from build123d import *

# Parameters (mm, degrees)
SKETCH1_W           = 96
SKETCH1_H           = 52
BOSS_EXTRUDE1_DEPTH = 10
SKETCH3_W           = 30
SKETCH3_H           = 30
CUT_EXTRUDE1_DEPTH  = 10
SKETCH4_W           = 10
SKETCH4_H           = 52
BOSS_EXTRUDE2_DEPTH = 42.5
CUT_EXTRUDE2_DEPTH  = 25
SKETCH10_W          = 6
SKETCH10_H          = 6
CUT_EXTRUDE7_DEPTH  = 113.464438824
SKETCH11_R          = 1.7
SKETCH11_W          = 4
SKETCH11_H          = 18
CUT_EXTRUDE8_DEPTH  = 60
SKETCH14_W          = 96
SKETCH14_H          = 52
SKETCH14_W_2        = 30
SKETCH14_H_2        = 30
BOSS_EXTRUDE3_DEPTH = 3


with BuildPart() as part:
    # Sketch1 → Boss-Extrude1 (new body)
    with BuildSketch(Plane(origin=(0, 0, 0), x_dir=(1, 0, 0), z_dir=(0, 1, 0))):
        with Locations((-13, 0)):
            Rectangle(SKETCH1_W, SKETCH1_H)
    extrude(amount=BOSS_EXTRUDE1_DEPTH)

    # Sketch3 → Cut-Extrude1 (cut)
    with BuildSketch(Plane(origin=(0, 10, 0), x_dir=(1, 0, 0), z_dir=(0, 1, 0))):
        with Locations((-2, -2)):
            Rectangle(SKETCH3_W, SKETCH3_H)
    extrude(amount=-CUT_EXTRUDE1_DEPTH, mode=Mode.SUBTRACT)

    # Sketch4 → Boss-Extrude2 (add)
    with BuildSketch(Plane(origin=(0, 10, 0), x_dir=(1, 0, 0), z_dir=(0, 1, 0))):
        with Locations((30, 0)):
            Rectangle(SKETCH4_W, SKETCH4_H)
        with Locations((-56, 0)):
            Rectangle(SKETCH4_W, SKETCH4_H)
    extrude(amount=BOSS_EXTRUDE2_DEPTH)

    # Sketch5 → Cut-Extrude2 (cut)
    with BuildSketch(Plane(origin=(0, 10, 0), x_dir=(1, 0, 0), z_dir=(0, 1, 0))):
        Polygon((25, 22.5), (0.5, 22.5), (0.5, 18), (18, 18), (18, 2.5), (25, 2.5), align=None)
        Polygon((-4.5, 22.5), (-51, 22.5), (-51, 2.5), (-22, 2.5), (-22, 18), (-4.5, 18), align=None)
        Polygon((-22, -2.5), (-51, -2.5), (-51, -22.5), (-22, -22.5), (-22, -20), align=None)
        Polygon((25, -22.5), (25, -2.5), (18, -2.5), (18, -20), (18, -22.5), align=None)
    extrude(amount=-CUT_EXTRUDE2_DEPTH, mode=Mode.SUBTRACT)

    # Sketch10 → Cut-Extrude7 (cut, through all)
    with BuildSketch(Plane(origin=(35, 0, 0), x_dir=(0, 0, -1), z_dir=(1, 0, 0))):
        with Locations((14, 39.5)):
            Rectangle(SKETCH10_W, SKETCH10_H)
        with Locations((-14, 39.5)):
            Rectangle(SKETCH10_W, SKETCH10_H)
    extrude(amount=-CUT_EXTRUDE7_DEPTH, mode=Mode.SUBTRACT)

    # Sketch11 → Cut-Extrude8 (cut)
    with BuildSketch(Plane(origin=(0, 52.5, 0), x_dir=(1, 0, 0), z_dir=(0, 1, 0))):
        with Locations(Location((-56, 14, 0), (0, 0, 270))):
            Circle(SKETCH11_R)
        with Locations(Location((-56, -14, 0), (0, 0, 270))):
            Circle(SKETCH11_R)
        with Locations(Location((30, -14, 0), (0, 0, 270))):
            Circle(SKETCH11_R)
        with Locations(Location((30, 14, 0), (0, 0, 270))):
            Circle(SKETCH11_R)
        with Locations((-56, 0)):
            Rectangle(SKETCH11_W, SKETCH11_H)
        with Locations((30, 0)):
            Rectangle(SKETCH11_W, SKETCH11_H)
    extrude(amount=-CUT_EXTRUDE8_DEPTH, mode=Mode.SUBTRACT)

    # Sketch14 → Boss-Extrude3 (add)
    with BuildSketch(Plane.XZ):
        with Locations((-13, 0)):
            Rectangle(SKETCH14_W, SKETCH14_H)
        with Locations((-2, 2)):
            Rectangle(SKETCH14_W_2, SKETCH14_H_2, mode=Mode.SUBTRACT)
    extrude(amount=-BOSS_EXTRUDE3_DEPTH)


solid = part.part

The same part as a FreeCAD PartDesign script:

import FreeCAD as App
import Part
import Sketcher

V = App.Vector
Q = App.Units.Quantity


def add_polygon(sketch, points):
    """Adds a closed chain of lines whose ends are joined by coincident constraints."""
    first, n = sketch.GeometryCount, len(points)
    for a, b in zip(points, points[1:] + points[:1]):
        sketch.addGeometry(Part.LineSegment(App.Vector(*a, 0), App.Vector(*b, 0)), False)
    for i in range(n):
        sketch.addConstraint(Sketcher.Constraint("Coincident", first + i, 2, first + (i + 1) % n, 1))

doc = App.newDocument("Part")
body = doc.addObject("PartDesign::Body", "Body")

# Sketch on XZ plane
sketch1 = body.newObject("Sketcher::SketchObject", "Sketch")
sketch1.AttachmentSupport = (doc.getObject("XZ_Plane"), [""])
sketch1.MapMode = "FlatFace"
add_polygon(sketch1, [(-61, -26), (-61, 26), (35, 26), (35, -26)])  # lines 0-3
sketch1.addConstraint(Sketcher.Constraint("Vertical", 0))
sketch1.addConstraint(Sketcher.Constraint("Horizontal", 1))
sketch1.addConstraint(Sketcher.Constraint("Vertical", 2))
sketch1.addConstraint(Sketcher.Constraint("Horizontal", 3))
sketch1.addConstraint(Sketcher.Constraint("DistanceX", 1, 1, 1, 2, Q("96 mm")))
sketch1.addConstraint(Sketcher.Constraint("DistanceY", 0, 1, 0, 2, Q("52 mm")))
sketch1.addConstraint(Sketcher.Constraint("DistanceX", 0, 2, -1, 1, Q("61 mm")))
sketch1.addConstraint(Sketcher.Constraint("DistanceY", -1, 1, 0, 2, Q("26 mm")))
pad1 = body.newObject("PartDesign::Pad", "Pad")
pad1.Profile = sketch1
pad1.Length = 10
pad1.Reversed = True

# Sketch on XZ plane
sketch2 = body.newObject("Sketcher::SketchObject", "Sketch001")
sketch2.AttachmentSupport = (doc.getObject("XZ_Plane"), [""])
sketch2.MapMode = "FlatFace"
sketch2.AttachmentOffset = App.Placement(V(0, 0, -10), App.Rotation())
add_polygon(sketch2, [(-17, -13), (-17, 17), (13, 17), (13, -13)])  # lines 0-3
sketch2.addConstraint(Sketcher.Constraint("Vertical", 0))
sketch2.addConstraint(Sketcher.Constraint("Horizontal", 1))
sketch2.addConstraint(Sketcher.Constraint("Vertical", 2))
sketch2.addConstraint(Sketcher.Constraint("Horizontal", 3))
sketch2.addConstraint(Sketcher.Constraint("Equal", 3, 0))
sketch2.addConstraint(Sketcher.Constraint("DistanceX", 1, 1, 1, 2, Q("30 mm")))
sketch2.addConstraint(Sketcher.Constraint("DistanceX", 0, 2, -1, 1, Q("17 mm")))
sketch2.addConstraint(Sketcher.Constraint("DistanceY", -1, 1, 0, 2, Q("17 mm")))
pocket1 = body.newObject("PartDesign::Pocket", "Pocket")
pocket1.Profile = sketch2
pocket1.Length = 10
pocket1.Reversed = True

# Sketch on XZ plane
sketch3 = body.newObject("Sketcher::SketchObject", "Sketch002")
sketch3.AttachmentSupport = (doc.getObject("XZ_Plane"), [""])
sketch3.MapMode = "FlatFace"
sketch3.AttachmentOffset = App.Placement(V(0, 0, -10), App.Rotation())
add_polygon(sketch3, [(25, -26), (25, 26), (35, 26), (35, -26)])  # lines 0-3
add_polygon(sketch3, [(-61, -26), (-61, 26), (-51, 26), (-51, -26)])  # lines 4-7
sketch3.addConstraint(Sketcher.Constraint("Vertical", 0))
sketch3.addConstraint(Sketcher.Constraint("Horizontal", 1))
sketch3.addConstraint(Sketcher.Constraint("Vertical", 2))
sketch3.addConstraint(Sketcher.Constraint("Horizontal", 3))
sketch3.addConstraint(Sketcher.Constraint("Vertical", 4))
sketch3.addConstraint(Sketcher.Constraint("Horizontal", 5))
sketch3.addConstraint(Sketcher.Constraint("Vertical", 6))
sketch3.addConstraint(Sketcher.Constraint("Horizontal", 7))
sketch3.addConstraint(Sketcher.Constraint("Horizontal", 1, 2, 4, 2))
sketch3.addConstraint(Sketcher.Constraint("Horizontal", 3, 2, 6, 2))
sketch3.addConstraint(Sketcher.Constraint("Equal", 3, 5))
sketch3.addConstraint(Sketcher.Constraint("DistanceX", 1, 1, 1, 2, Q("10 mm")))
sketch3.addConstraint(Sketcher.Constraint("DistanceY", 0, 1, 0, 2, Q("52 mm")))
sketch3.addConstraint(Sketcher.Constraint("DistanceX", -1, 1, 0, 2, Q("25 mm")))
sketch3.addConstraint(Sketcher.Constraint("DistanceY", -1, 1, 0, 2, Q("26 mm")))
sketch3.addConstraint(Sketcher.Constraint("DistanceX", 4, 2, -1, 1, Q("61 mm")))
pad2 = body.newObject("PartDesign::Pad", "Pad001")
pad2.Profile = sketch3
pad2.Length = 42.5
pad2.Reversed = True

# Sketch on XZ plane
sketch4 = body.newObject("Sketcher::SketchObject", "Sketch003")
sketch4.AttachmentSupport = (doc.getObject("XZ_Plane"), [""])
sketch4.MapMode = "FlatFace"
sketch4.AttachmentOffset = App.Placement(V(0, 0, -10), App.Rotation())
add_polygon(sketch4, [(25, -22.5), (0.5, -22.5), (0.5, -18), (18, -18), (18, -2.5), (25, -2.5)])  # lines 0-5
add_polygon(sketch4, [(-4.5, -22.5), (-51, -22.5), (-51, -2.5), (-22, -2.5), (-22, -18), (-4.5, -18)])  # lines 6-11
add_polygon(sketch4, [(-22, 2.5), (-51, 2.5), (-51, 22.5), (-22, 22.5)])  # lines 12-15
add_polygon(sketch4, [(25, 22.5), (25, 2.5), (18, 2.5), (18, 22.5)])  # lines 16-19
sketch4.addConstraint(Sketcher.Constraint("Horizontal", 0))
sketch4.addConstraint(Sketcher.Constraint("Vertical", 1))
sketch4.addConstraint(Sketcher.Constraint("Horizontal", 2))
sketch4.addConstraint(Sketcher.Constraint("Vertical", 3))
sketch4.addConstraint(Sketcher.Constraint("Horizontal", 4))
sketch4.addConstraint(Sketcher.Constraint("Vertical", 5))
sketch4.addConstraint(Sketcher.Constraint("Horizontal", 6))
sketch4.addConstraint(Sketcher.Constraint("Vertical", 7))
sketch4.addConstraint(Sketcher.Constraint("Horizontal", 8))
sketch4.addConstraint(Sketcher.Constraint("Vertical", 9))
sketch4.addConstraint(Sketcher.Constraint("Horizontal", 10))
sketch4.addConstraint(Sketcher.Constraint("Vertical", 11))
sketch4.addConstraint(Sketcher.Constraint("Horizontal", 12))
sketch4.addConstraint(Sketcher.Constraint("Vertical", 13))
sketch4.addConstraint(Sketcher.Constraint("Horizontal", 14))
sketch4.addConstraint(Sketcher.Constraint("Vertical", 15))
sketch4.addConstraint(Sketcher.Constraint("Vertical", 16))
sketch4.addConstraint(Sketcher.Constraint("Horizontal", 17))
sketch4.addConstraint(Sketcher.Constraint("Vertical", 18))
sketch4.addConstraint(Sketcher.Constraint("Horizontal", 19))
sketch4.addConstraint(Sketcher.Constraint("Symmetric", 7, 2, 12, 2, -1))
sketch4.addConstraint(Sketcher.Constraint("Symmetric", 4, 2, 16, 2, -1))
sketch4.addConstraint(Sketcher.Constraint("Horizontal", 5, 2, 6, 2))
sketch4.addConstraint(Sketcher.Constraint("Horizontal", 4, 2, 7, 2))
sketch4.addConstraint(Sketcher.Constraint("Horizontal", 2, 2, 9, 2))
sketch4.addConstraint(Sketcher.Constraint("Horizontal", 14, 2, 18, 2))
sketch4.addConstraint(Sketcher.Constraint("Vertical", 9, 2, 14, 2))
sketch4.addConstraint(Sketcher.Constraint("Vertical", 3, 2, 17, 2))
sketch4.addConstraint(Sketcher.Constraint("Equal", 2, 10))
sketch4.addConstraint(Sketcher.Constraint("Equal", 7, 13))
sketch4.addConstraint(Sketcher.Constraint("DistanceX", 4, 1, 4, 2, Q("7 mm")))
sketch4.addConstraint(Sketcher.Constraint("DistanceX", 8, 1, 8, 2, Q("29 mm")))
sketch4.addConstraint(Sketcher.Constraint("DistanceY", 5, 2, 5, 1, Q("20 mm")))
sketch4.addConstraint(Sketcher.Constraint("DistanceX", 0, 2, 0, 1, Q("24.5 mm")))
sketch4.addConstraint(Sketcher.Constraint("DistanceY", 1, 1, 1, 2, Q("4.5 mm")))
sketch4.addConstraint(Sketcher.Constraint("DistanceY", 1, 2, -1, 1, Q("18 mm")))
sketch4.addConstraint(Sketcher.Constraint("DistanceX", -1, 1, 2, 2, Q("18 mm")))
sketch4.addConstraint(Sketcher.Constraint("DistanceX", 6, 2, -1, 1, Q("51 mm")))
pocket2 = body.newObject("PartDesign::Pocket", "Pocket001")
pocket2.Profile = sketch4
pocket2.Length = 25
pocket2.Reversed = True

# Sketch on YZ plane
sketch5 = body.newObject("Sketcher::SketchObject", "Sketch004")
sketch5.AttachmentSupport = (doc.getObject("YZ_Plane"), [""])
sketch5.MapMode = "FlatFace"
sketch5.AttachmentOffset = App.Placement(V(0, 0, 35), App.Rotation())
add_polygon(sketch5, [(42, -11), (36, -11), (36, -17), (42, -17)])  # lines 0-3
add_polygon(sketch5, [(42, 17), (36, 17), (36, 11), (42, 11)])  # lines 4-7
sketch5.addConstraint(Sketcher.Constraint("Horizontal", 0))
sketch5.addConstraint(Sketcher.Constraint("Vertical", 1))
sketch5.addConstraint(Sketcher.Constraint("Horizontal", 2))
sketch5.addConstraint(Sketcher.Constraint("Vertical", 3))
sketch5.addConstraint(Sketcher.Constraint("Horizontal", 4))
sketch5.addConstraint(Sketcher.Constraint("Vertical", 5))
sketch5.addConstraint(Sketcher.Constraint("Horizontal", 6))
sketch5.addConstraint(Sketcher.Constraint("Vertical", 7))
sketch5.addConstraint(Sketcher.Constraint("Symmetric", 1, 2, 4, 2, -1))
sketch5.addConstraint(Sketcher.Constraint("Symmetric", 3, 2, 6, 2, -1))
sketch5.addConstraint(Sketcher.Constraint("Equal", 6, 1))
sketch5.addConstraint(Sketcher.Constraint("DistanceX", 0, 2, 0, 1, Q("6 mm")))
sketch5.addConstraint(Sketcher.Constraint("DistanceY", 0, 2, -1, 1, Q("11 mm")))
sketch5.addConstraint(Sketcher.Constraint("DistanceX", -1, 1, 0, 2, Q("36.5 mm")))
pocket3 = body.newObject("PartDesign::Pocket", "Pocket002")
pocket3.Profile = sketch5
pocket3.Type = "ThroughAll"

# Sketch on XZ plane
sketch6 = body.newObject("Sketcher::SketchObject", "Sketch005")
sketch6.AttachmentSupport = (doc.getObject("XZ_Plane"), [""])
sketch6.MapMode = "FlatFace"
sketch6.AttachmentOffset = App.Placement(V(0, 0, -52.5), App.Rotation())
sketch6.addGeometry(Part.Circle(V(-56, -14, 0), V(0, 0, 1), 1.7), False)  # 0
sketch6.addGeometry(Part.Circle(V(-56, 14, 0), V(0, 0, 1), 1.7), False)  # 1
sketch6.addGeometry(Part.Circle(V(30, 14, 0), V(0, 0, 1), 1.7), False)  # 2
sketch6.addGeometry(Part.Circle(V(30, -14, 0), V(0, 0, 1), 1.7), False)  # 3
add_polygon(sketch6, [(-58, -9), (-58, 9), (-54, 9), (-54, -9)])  # lines 4-7
add_polygon(sketch6, [(28, -9), (28, 9), (32, 9), (32, -9)])  # lines 8-11
sketch6.addConstraint(Sketcher.Constraint("Vertical", 4))
sketch6.addConstraint(Sketcher.Constraint("Horizontal", 5))
sketch6.addConstraint(Sketcher.Constraint("Vertical", 6))
sketch6.addConstraint(Sketcher.Constraint("Horizontal", 7))
sketch6.addConstraint(Sketcher.Constraint("Vertical", 8))
sketch6.addConstraint(Sketcher.Constraint("Horizontal", 9))
sketch6.addConstraint(Sketcher.Constraint("Vertical", 10))
sketch6.addConstraint(Sketcher.Constraint("Horizontal", 11))
sketch6.addConstraint(Sketcher.Constraint("Equal", 0, 1))
sketch6.addConstraint(Sketcher.Constraint("Equal", 1, 2))
sketch6.addConstraint(Sketcher.Constraint("Equal", 2, 3))
sketch6.addConstraint(Sketcher.Constraint("Symmetric", 0, 3, 1, 3, -1))
sketch6.addConstraint(Sketcher.Constraint("Symmetric", 2, 3, 3, 3, -1))
sketch6.addConstraint(Sketcher.Constraint("Horizontal", 1, 3, 2, 3))
sketch6.addConstraint(Sketcher.Constraint("Horizontal", 5, 2, 8, 2))
sketch6.addConstraint(Sketcher.Constraint("Horizontal", 7, 2, 10, 2))
sketch6.addConstraint(Sketcher.Constraint("Equal", 7, 9))
sketch6.addConstraint(Sketcher.Constraint("Diameter", 0, Q("3.4 mm")))
sketch6.addConstraint(Sketcher.Constraint("DistanceX", 5, 1, 5, 2, Q("4 mm")))
sketch6.addConstraint(Sketcher.Constraint("DistanceY", 4, 1, 4, 2, Q("18 mm")))
sketch6.addConstraint(Sketcher.Constraint("DistanceX", 0, 3, -1, 1, Q("56 mm")))
sketch6.addConstraint(Sketcher.Constraint("DistanceY", 0, 3, -1, 1, Q("14 mm")))
sketch6.addConstraint(Sketcher.Constraint("DistanceX", -1, 1, 2, 3, Q("30 mm")))
sketch6.addConstraint(Sketcher.Constraint("DistanceX", 4, 2, -1, 1, Q("58 mm")))
sketch6.addConstraint(Sketcher.Constraint("DistanceY", -1, 1, 4, 2, Q("9 mm")))
sketch6.addConstraint(Sketcher.Constraint("DistanceX", -1, 1, 8, 2, Q("28 mm")))
pocket4 = body.newObject("PartDesign::Pocket", "Pocket003")
pocket4.Profile = sketch6
pocket4.Length = 60
pocket4.Reversed = True

# Sketch on XZ plane
sketch7 = body.newObject("Sketcher::SketchObject", "Sketch006")
sketch7.AttachmentSupport = (doc.getObject("XZ_Plane"), [""])
sketch7.MapMode = "FlatFace"
add_polygon(sketch7, [(-61, 26), (-61, -26), (35, -26), (35, 26)])  # lines 0-3
add_polygon(sketch7, [(13, -13), (-17, -13), (-17, 17), (13, 17)])  # lines 4-7
sketch7.addConstraint(Sketcher.Constraint("Vertical", 0))
sketch7.addConstraint(Sketcher.Constraint("Horizontal", 1))
sketch7.addConstraint(Sketcher.Constraint("Vertical", 2))
sketch7.addConstraint(Sketcher.Constraint("Horizontal", 3))
sketch7.addConstraint(Sketcher.Constraint("Horizontal", 4))
sketch7.addConstraint(Sketcher.Constraint("Vertical", 5))
sketch7.addConstraint(Sketcher.Constraint("Horizontal", 6))
sketch7.addConstraint(Sketcher.Constraint("Vertical", 7))
sketch7.addConstraint(Sketcher.Constraint("Equal", 6, 5))
sketch7.addConstraint(Sketcher.Constraint("DistanceX", 1, 1, 1, 2, Q("96 mm")))
sketch7.addConstraint(Sketcher.Constraint("DistanceX", 4, 2, 4, 1, Q("30 mm")))
sketch7.addConstraint(Sketcher.Constraint("DistanceY", 0, 2, 0, 1, Q("52 mm")))
sketch7.addConstraint(Sketcher.Constraint("DistanceX", 0, 2, -1, 1, Q("61 mm")))
sketch7.addConstraint(Sketcher.Constraint("DistanceY", 0, 2, -1, 1, Q("26 mm")))
sketch7.addConstraint(Sketcher.Constraint("DistanceX", 4, 2, -1, 1, Q("17 mm")))
sketch7.addConstraint(Sketcher.Constraint("DistanceY", 4, 2, -1, 1, Q("13 mm")))
pad3 = body.newObject("PartDesign::Pad", "Pad002")
pad3.Profile = sketch7
pad3.Length = 3
pad3.Reversed = True

doc.recompute()
